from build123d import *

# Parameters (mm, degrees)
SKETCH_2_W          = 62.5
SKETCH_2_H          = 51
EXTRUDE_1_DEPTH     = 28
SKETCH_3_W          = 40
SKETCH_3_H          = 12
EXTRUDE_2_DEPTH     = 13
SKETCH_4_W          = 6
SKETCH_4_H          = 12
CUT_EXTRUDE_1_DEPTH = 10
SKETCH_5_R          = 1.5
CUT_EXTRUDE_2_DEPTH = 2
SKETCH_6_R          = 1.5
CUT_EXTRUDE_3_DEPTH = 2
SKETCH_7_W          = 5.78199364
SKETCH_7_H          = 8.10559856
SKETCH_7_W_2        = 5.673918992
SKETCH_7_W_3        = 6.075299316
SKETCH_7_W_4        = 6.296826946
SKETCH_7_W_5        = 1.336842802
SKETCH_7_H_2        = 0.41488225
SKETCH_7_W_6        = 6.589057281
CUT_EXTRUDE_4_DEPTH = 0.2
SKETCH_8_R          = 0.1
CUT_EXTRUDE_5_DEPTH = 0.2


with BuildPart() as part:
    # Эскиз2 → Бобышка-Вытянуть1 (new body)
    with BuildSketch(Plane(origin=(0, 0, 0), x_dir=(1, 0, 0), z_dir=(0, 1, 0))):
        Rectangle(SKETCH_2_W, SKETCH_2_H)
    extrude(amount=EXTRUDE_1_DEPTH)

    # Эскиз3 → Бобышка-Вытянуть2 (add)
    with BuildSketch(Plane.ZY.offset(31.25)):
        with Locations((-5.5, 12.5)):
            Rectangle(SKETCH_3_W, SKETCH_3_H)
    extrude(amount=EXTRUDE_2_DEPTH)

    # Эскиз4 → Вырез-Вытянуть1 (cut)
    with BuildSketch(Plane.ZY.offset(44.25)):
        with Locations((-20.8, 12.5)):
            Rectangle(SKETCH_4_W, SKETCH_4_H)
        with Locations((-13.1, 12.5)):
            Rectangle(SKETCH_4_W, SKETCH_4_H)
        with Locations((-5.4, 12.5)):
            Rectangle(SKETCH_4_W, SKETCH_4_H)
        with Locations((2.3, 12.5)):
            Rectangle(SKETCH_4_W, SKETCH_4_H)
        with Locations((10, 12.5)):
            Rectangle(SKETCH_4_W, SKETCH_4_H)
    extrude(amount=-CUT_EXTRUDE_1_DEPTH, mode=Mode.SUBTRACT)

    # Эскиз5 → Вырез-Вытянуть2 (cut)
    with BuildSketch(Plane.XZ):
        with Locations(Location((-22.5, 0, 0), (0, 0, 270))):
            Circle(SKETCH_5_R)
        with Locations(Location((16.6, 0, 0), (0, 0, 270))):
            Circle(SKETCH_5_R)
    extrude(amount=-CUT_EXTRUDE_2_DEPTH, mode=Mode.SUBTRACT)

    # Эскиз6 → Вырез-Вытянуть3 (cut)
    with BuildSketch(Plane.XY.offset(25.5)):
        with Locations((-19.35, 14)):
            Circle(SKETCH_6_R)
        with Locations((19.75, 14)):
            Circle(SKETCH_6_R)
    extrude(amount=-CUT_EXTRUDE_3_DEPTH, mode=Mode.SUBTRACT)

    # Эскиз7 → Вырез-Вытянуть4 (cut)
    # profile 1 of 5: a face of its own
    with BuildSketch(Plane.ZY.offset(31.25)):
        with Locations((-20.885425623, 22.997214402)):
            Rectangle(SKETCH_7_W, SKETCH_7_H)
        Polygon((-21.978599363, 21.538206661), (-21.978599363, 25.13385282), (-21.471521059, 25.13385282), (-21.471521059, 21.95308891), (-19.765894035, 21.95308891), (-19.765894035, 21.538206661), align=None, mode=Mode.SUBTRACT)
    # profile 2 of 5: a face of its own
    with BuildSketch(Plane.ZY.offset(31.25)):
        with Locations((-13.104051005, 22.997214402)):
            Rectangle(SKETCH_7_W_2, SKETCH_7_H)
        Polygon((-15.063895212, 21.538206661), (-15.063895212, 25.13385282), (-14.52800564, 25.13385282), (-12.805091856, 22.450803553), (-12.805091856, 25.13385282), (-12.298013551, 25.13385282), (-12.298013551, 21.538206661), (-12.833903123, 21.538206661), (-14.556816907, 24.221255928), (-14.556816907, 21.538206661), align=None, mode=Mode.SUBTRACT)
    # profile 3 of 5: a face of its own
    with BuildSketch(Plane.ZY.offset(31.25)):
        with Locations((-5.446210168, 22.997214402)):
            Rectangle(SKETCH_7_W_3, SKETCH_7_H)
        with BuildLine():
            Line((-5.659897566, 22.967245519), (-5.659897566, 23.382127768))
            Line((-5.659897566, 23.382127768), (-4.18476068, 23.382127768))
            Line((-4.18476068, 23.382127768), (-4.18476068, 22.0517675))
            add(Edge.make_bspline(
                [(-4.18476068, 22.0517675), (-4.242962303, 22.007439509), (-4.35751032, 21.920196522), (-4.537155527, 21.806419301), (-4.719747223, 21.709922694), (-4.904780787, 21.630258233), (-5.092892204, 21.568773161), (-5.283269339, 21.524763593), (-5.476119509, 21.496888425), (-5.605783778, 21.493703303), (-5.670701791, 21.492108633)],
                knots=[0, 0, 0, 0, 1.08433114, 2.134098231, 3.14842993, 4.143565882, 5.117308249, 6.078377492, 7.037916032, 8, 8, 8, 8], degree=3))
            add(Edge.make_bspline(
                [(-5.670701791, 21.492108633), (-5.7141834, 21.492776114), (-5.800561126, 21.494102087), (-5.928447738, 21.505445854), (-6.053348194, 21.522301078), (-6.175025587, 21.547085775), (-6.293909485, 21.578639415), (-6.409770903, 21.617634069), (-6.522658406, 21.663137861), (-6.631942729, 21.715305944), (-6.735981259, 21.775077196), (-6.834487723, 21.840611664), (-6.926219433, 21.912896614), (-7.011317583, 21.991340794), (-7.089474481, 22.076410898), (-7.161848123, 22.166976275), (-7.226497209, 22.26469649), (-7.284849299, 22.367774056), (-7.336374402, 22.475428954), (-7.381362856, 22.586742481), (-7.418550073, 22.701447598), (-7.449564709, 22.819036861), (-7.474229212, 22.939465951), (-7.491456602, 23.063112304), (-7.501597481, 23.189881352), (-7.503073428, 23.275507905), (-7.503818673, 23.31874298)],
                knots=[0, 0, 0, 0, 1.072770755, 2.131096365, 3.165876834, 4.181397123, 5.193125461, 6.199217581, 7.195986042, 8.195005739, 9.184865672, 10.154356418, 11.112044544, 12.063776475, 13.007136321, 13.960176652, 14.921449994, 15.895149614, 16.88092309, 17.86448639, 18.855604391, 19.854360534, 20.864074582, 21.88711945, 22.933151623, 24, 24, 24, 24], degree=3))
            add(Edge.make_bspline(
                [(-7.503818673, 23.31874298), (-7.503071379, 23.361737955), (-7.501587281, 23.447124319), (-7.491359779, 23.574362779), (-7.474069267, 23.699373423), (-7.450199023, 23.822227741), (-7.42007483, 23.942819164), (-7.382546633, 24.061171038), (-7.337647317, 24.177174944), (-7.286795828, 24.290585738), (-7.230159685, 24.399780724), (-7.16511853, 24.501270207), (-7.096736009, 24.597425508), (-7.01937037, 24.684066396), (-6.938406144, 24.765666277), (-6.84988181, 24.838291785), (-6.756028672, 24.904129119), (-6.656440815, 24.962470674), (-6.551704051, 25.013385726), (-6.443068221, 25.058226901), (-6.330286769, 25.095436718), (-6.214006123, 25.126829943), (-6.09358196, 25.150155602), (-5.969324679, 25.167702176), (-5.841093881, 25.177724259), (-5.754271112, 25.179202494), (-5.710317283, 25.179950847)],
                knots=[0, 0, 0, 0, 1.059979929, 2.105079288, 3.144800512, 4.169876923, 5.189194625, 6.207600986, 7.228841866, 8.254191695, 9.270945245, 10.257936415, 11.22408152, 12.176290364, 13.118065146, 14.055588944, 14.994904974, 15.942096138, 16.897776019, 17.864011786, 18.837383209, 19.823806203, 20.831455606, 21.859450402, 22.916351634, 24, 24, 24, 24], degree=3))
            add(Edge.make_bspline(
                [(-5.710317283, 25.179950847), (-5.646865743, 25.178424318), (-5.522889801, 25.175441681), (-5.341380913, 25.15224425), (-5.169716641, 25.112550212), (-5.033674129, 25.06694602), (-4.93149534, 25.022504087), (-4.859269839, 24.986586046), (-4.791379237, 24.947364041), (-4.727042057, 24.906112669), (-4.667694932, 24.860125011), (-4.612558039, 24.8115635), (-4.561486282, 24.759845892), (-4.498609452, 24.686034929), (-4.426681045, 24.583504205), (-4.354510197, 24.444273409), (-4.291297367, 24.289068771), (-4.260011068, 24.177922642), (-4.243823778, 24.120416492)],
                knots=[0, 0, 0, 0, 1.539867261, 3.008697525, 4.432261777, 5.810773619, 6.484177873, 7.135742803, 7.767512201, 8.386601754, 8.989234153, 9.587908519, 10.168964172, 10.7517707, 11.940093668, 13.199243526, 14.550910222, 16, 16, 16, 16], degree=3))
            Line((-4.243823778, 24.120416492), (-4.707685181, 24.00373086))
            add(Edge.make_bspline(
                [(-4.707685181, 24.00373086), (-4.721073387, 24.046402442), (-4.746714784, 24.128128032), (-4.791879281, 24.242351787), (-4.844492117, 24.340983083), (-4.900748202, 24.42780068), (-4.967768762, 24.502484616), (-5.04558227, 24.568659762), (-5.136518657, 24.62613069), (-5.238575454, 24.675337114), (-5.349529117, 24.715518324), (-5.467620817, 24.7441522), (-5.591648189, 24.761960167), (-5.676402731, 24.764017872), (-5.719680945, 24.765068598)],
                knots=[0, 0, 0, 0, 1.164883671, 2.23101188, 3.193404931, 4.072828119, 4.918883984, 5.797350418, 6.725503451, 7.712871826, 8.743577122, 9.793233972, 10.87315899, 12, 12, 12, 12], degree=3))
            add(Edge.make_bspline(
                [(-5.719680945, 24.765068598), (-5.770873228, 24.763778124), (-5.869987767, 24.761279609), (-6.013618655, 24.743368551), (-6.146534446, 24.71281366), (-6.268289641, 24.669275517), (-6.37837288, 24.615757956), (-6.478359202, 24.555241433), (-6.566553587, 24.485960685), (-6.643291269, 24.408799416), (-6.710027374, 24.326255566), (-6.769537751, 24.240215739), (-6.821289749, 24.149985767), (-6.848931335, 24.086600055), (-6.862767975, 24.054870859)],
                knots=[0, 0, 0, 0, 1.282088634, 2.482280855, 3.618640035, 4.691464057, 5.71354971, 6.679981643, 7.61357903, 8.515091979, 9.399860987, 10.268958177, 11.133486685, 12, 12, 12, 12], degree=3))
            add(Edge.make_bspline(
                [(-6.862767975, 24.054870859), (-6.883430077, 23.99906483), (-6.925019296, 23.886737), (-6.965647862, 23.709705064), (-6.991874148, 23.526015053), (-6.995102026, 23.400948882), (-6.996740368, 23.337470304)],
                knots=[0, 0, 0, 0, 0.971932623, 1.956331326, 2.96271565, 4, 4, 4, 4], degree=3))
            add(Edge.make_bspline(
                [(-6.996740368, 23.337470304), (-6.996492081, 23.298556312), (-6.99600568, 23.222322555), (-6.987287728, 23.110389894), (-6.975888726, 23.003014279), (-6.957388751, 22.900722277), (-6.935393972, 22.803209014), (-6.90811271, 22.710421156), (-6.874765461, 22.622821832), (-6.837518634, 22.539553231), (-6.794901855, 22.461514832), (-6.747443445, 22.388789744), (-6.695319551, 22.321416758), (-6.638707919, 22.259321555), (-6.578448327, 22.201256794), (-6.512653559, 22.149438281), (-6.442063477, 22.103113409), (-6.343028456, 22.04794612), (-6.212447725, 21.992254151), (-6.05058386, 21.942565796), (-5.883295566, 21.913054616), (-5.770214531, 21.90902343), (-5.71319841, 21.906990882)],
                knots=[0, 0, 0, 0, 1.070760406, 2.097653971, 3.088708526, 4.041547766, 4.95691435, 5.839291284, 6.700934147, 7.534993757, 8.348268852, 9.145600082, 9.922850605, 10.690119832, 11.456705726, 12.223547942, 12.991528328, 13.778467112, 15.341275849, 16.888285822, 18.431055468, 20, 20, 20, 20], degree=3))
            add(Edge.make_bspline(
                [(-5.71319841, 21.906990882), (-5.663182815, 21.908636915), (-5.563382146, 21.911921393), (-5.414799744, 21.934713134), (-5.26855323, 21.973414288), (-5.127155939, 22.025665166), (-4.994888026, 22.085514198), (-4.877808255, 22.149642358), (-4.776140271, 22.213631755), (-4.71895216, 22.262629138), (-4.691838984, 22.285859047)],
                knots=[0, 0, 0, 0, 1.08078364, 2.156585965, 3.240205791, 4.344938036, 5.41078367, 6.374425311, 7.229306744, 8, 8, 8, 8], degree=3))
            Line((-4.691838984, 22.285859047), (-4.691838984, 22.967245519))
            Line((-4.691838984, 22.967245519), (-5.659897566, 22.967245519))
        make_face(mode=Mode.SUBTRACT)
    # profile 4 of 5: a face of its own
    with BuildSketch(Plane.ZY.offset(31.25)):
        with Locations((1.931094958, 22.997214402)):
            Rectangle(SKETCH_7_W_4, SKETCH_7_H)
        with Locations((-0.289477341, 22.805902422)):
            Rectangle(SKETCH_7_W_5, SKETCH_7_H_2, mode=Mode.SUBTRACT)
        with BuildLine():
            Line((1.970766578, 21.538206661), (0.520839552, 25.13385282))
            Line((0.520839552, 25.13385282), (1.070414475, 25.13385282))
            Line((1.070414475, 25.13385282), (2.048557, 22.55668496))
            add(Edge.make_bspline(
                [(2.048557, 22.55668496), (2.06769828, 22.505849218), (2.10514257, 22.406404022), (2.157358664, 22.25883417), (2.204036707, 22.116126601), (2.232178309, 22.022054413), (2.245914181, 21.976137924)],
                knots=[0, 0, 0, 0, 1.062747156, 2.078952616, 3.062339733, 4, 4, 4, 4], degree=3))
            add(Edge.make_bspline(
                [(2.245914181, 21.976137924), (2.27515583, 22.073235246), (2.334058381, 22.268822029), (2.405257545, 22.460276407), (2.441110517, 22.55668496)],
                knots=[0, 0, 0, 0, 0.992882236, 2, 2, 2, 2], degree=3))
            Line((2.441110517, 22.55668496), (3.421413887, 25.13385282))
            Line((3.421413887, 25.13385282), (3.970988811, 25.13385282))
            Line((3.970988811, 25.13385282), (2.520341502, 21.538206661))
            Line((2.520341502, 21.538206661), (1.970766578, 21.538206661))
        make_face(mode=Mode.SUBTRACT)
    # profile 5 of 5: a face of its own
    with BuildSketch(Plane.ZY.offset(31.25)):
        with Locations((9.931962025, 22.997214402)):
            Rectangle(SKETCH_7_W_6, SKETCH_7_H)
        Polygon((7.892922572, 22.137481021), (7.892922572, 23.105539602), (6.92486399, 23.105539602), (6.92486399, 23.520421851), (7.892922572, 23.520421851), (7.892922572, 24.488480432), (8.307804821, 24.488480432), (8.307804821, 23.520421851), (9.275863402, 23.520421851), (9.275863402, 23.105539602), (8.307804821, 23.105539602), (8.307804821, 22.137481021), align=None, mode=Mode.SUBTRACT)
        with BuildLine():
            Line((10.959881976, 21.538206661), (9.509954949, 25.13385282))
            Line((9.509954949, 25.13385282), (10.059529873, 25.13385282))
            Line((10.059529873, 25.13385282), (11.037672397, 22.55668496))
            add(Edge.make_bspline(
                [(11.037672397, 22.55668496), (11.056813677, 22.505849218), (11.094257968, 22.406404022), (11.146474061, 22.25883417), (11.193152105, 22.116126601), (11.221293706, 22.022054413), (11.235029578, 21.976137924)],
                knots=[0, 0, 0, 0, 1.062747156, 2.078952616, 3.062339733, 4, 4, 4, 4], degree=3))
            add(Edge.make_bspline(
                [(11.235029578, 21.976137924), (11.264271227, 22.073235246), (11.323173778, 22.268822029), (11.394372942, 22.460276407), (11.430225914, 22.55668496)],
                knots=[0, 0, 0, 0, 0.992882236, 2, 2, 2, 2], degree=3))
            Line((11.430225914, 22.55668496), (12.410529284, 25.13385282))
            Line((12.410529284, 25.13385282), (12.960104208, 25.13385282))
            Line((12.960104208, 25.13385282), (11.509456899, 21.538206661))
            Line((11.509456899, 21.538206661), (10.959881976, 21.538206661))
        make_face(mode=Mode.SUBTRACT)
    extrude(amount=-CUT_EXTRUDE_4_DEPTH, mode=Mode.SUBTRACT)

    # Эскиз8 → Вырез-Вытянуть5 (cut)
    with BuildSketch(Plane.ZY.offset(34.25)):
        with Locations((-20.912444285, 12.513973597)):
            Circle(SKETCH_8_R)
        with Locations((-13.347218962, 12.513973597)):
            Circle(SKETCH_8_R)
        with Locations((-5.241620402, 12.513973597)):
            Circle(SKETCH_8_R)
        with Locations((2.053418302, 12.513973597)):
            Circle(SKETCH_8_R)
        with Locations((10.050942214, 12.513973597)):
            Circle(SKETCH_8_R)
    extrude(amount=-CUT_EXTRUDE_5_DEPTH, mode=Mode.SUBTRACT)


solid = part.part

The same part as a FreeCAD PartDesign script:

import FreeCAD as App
import Part
import Sketcher

V = App.Vector

doc = App.newDocument("Part")
body = doc.addObject("PartDesign::Body", "Body")

# Sketch on XZ plane
sketch1 = body.newObject("Sketcher::SketchObject", "Sketch")
sketch1.AttachmentSupport = (doc.getObject("XZ_Plane"), [""])
sketch1.MapMode = "FlatFace"
sketch1.addGeometry([
    Part.LineSegment(V(-31.25, -25.5, 0), V(-31.25, 25.5, 0)),
    Part.LineSegment(V(-31.25, 25.5, 0), V(31.25, 25.5, 0)),
    Part.LineSegment(V(31.25, 25.5, 0), V(31.25, -25.5, 0)),
    Part.LineSegment(V(31.25, -25.5, 0), V(-31.25, -25.5, 0)),
], False)
sketch1.addConstraint([
    Sketcher.Constraint("Coincident", 0, 2, 1, 1),
    Sketcher.Constraint("Coincident", 1, 2, 2, 1),
    Sketcher.Constraint("Coincident", 2, 2, 3, 1),
    Sketcher.Constraint("Coincident", 3, 2, 0, 1),
    Sketcher.Constraint("Vertical", 0),
    Sketcher.Constraint("Horizontal", 1),
    Sketcher.Constraint("Vertical", 2),
    Sketcher.Constraint("Horizontal", 3),
    Sketcher.Constraint("Symmetric", 0, 2, 2, 2, -1, 1),
    Sketcher.Constraint("DistanceY", 0, 1, 0, 2, 51.0),
    Sketcher.Constraint("DistanceX", 1, 1, 1, 2, 62.5),
])
pad1 = body.newObject("PartDesign::Pad", "Pad")
pad1.Profile = sketch1
pad1.Length = 28
pad1.Reversed = True

# Sketch on YZ plane
sketch2 = body.newObject("Sketcher::SketchObject", "Sketch001")
sketch2.AttachmentSupport = (doc.getObject("YZ_Plane"), [""])
sketch2.MapMode = "FlatFace"
sketch2.AttachmentOffset = App.Placement(V(0, 0, -31.25), App.Rotation())
sketch2.addGeometry([
    Part.LineSegment(V(18.5, -25.5, 0), V(6.5, -25.5, 0)),
    Part.LineSegment(V(6.5, -25.5, 0), V(6.5, 14.5, 0)),
    Part.LineSegment(V(6.5, 14.5, 0), V(18.5, 14.5, 0)),
    Part.LineSegment(V(18.5, 14.5, 0), V(18.5, -25.5, 0)),
], False)
sketch2.addConstraint([
    Sketcher.Constraint("Coincident", 0, 2, 1, 1),
    Sketcher.Constraint("Coincident", 1, 2, 2, 1),
    Sketcher.Constraint("Coincident", 2, 2, 3, 1),
    Sketcher.Constraint("Coincident", 3, 2, 0, 1),
    Sketcher.Constraint("Horizontal", 0),
    Sketcher.Constraint("Vertical", 1),
    Sketcher.Constraint("Horizontal", 2),
    Sketcher.Constraint("Vertical", 3),
    Sketcher.Constraint("DistanceX", 0, 2, 0, 1, 12.0),
    Sketcher.Constraint("DistanceY", 1, 1, 1, 2, 40.0),
    Sketcher.Constraint("DistanceX", -1, 1, 0, 2, 6.5),
    Sketcher.Constraint("DistanceY", 0, 2, -1, 1, 25.5),
])
pad2 = body.newObject("PartDesign::Pad", "Pad001")
pad2.Profile = sketch2
pad2.Length = 13
pad2.Reversed = True

# Sketch on YZ plane
sketch3 = body.newObject("Sketcher::SketchObject", "Sketch002")
sketch3.AttachmentSupport = (doc.getObject("YZ_Plane"), [""])
sketch3.MapMode = "FlatFace"
sketch3.AttachmentOffset = App.Placement(V(0, 0, -44.25), App.Rotation())
sketch3.addGeometry([
    Part.LineSegment(V(18.5, -23.8, 0), V(6.5, -23.8, 0)),  # 0
    Part.LineSegment(V(6.5, -23.8, 0), V(6.5, -17.8, 0)),  # 1
    Part.LineSegment(V(6.5, -17.8, 0), V(18.5, -17.8, 0)),  # 2
    Part.LineSegment(V(18.5, -17.8, 0), V(18.5, -23.8, 0)),  # 3
    Part.LineSegment(V(18.5, -16.1, 0), V(6.5, -16.1, 0)),  # 4
    Part.LineSegment(V(6.5, -16.1, 0), V(6.5, -10.1, 0)),  # 5
    Part.LineSegment(V(6.5, -10.1, 0), V(18.5, -10.1, 0)),  # 6
    Part.LineSegment(V(18.5, -10.1, 0), V(18.5, -16.1, 0)),  # 7
    Part.LineSegment(V(18.5, -8.4, 0), V(6.5, -8.4, 0)),  # 8
    Part.LineSegment(V(6.5, -8.4, 0), V(6.5, -2.4, 0)),  # 9
    Part.LineSegment(V(6.5, -2.4, 0), V(18.5, -2.4, 0)),  # 10
    Part.LineSegment(V(18.5, -2.4, 0), V(18.5, -8.4, 0)),  # 11
    Part.LineSegment(V(18.5, -0.7, 0), V(6.5, -0.7, 0)),  # 12
    Part.LineSegment(V(6.5, -0.7, 0), V(6.5, 5.3, 0)),  # 13
    Part.LineSegment(V(6.5, 5.3, 0), V(18.5, 5.3, 0)),  # 14
    Part.LineSegment(V(18.5, 5.3, 0), V(18.5, -0.7, 0)),  # 15
    Part.LineSegment(V(18.5, 7, 0), V(6.5, 7, 0)),  # 16
    Part.LineSegment(V(6.5, 7, 0), V(6.5, 13, 0)),  # 17
    Part.LineSegment(V(6.5, 13, 0), V(18.5, 13, 0)),  # 18
    Part.LineSegment(V(18.5, 13, 0), V(18.5, 7, 0)),  # 19
], False)
sketch3.addConstraint([
    Sketcher.Constraint("Coincident", 0, 2, 1, 1),
    Sketcher.Constraint("Coincident", 1, 2, 2, 1),
    Sketcher.Constraint("Coincident", 2, 2, 3, 1),
    Sketcher.Constraint("Coincident", 3, 2, 0, 1),
    Sketcher.Constraint("Coincident", 4, 2, 5, 1),
    Sketcher.Constraint("Coincident", 5, 2, 6, 1),
    Sketcher.Constraint("Coincident", 6, 2, 7, 1),
    Sketcher.Constraint("Coincident", 7, 2, 4, 1),
    Sketcher.Constraint("Coincident", 8, 2, 9, 1),
    Sketcher.Constraint("Coincident", 9, 2, 10, 1),
    Sketcher.Constraint("Coincident", 10, 2, 11, 1),
    Sketcher.Constraint("Coincident", 11, 2, 8, 1),
    Sketcher.Constraint("Coincident", 12, 2, 13, 1),
    Sketcher.Constraint("Coincident", 13, 2, 14, 1),
    Sketcher.Constraint("Coincident", 14, 2, 15, 1),
    Sketcher.Constraint("Coincident", 15, 2, 12, 1),
    Sketcher.Constraint("Coincident", 16, 2, 17, 1),
    Sketcher.Constraint("Coincident", 17, 2, 18, 1),
    Sketcher.Constraint("Coincident", 18, 2, 19, 1),
    Sketcher.Constraint("Coincident", 19, 2, 16, 1),
    Sketcher.Constraint("Horizontal", 0),
    Sketcher.Constraint("Vertical", 1),
    Sketcher.Constraint("Horizontal", 2),
    Sketcher.Constraint("Vertical", 3),
    Sketcher.Constraint("Horizontal", 4),
    Sketcher.Constraint("Vertical", 5),
    Sketcher.Constraint("Horizontal", 6),
    Sketcher.Constraint("Vertical", 7),
    Sketcher.Constraint("Horizontal", 8),
    Sketcher.Constraint("Vertical", 9),
    Sketcher.Constraint("Horizontal", 10),
    Sketcher.Constraint("Vertical", 11),
    Sketcher.Constraint("Horizontal", 12),
    Sketcher.Constraint("Vertical", 13),
    Sketcher.Constraint("Horizontal", 14),
    Sketcher.Constraint("Vertical", 15),
    Sketcher.Constraint("Horizontal", 16),
    Sketcher.Constraint("Vertical", 17),
    Sketcher.Constraint("Horizontal", 18),
    Sketcher.Constraint("Vertical", 19),
    Sketcher.Constraint("Vertical", 1, 2, 4, 2),
    Sketcher.Constraint("Vertical", 3, 2, 6, 2),
    Sketcher.Constraint("Vertical", 5, 2, 8, 2),
    Sketcher.Constraint("Vertical", 7, 2, 10, 2),
    Sketcher.Constraint("Vertical", 9, 2, 12, 2),
    Sketcher.Constraint("Vertical", 11, 2, 14, 2),
    Sketcher.Constraint("Vertical", 13, 2, 16, 2),
    Sketcher.Constraint("Vertical", 15, 2, 18, 2),
    Sketcher.Constraint("Equal", 3, 5),
    Sketcher.Constraint("Equal", 7, 9),
    Sketcher.Constraint("Equal", 11, 13),
    Sketcher.Constraint("Equal", 15, 17),
    Sketcher.Constraint("DistanceX", 0, 2, 0, 1, 12.0),
    Sketcher.Constraint("DistanceY", 1, 1, 1, 2, 6.0),
    Sketcher.Constraint("DistanceY", -1, 1, 16, 2, 7.0),
    Sketcher.Constraint("DistanceX", -1, 1, 0, 2, 6.5),
    Sketcher.Constraint("DistanceY", 0, 2, -1, 1, 23.8),
    Sketcher.Constraint("DistanceY", 4, 2, -1, 1, 16.1),
    Sketcher.Constraint("DistanceY", 8, 2, -1, 1, 8.4),
    Sketcher.Constraint("DistanceY", 12, 2, -1, 1, 0.7),
])
pocket1 = body.newObject("PartDesign::Pocket", "Pocket")
pocket1.Profile = sketch3
pocket1.Length = 10
pocket1.Reversed = True

# Sketch on XZ plane
sketch4 = body.newObject("Sketcher::SketchObject", "Sketch003")
sketch4.AttachmentSupport = (doc.getObject("XZ_Plane"), [""])
sketch4.MapMode = "FlatFace"
sketch4.addGeometry([
    Part.Circle(V(-22.5, 0, 0), V(0, 0, 1), 1.5),
    Part.Circle(V(16.6, 0, 0), V(0, 0, 1), 1.5),
], False)
sketch4.addConstraint([
    Sketcher.Constraint("Equal", 0, 1),
    Sketcher.Constraint("PointOnObject", 0, 3, -1),
    Sketcher.Constraint("PointOnObject", 1, 3, -1),
    Sketcher.Constraint("Diameter", 0, 3.0),
    Sketcher.Constraint("DistanceX", 0, 3, -1, 1, 22.5),
    Sketcher.Constraint("DistanceX", -1, 1, 1, 3, 16.6),
])
pocket2 = body.newObject("PartDesign::Pocket", "Pocket001")
pocket2.Profile = sketch4
pocket2.Length = 2

# Sketch on XY plane
sketch5 = body.newObject("Sketcher::SketchObject", "Sketch004")
sketch5.AttachmentSupport = (doc.getObject("XY_Plane"), [""])
sketch5.MapMode = "FlatFace"
sketch5.AttachmentOffset = App.Placement(V(0, 0, 25.5), App.Rotation())
sketch5.addGeometry([
    Part.Circle(V(-19.35, 14, 0), V(0, 0, 1), 1.5),
    Part.Circle(V(19.75, 14, 0), V(0, 0, 1), 1.5),
], False)
sketch5.addConstraint([
    Sketcher.Constraint("Equal", 0, 1),
    Sketcher.Constraint("Horizontal", 0, 3, 1, 3),
    Sketcher.Constraint("Diameter", 0, 3.0),
    Sketcher.Constraint("DistanceY", -1, 1, 0, 3, 14.0),
    Sketcher.Constraint("DistanceX", 0, 3, 1, 3, 39.1),
    Sketcher.Constraint("DistanceX", 0, 3, -1, 1, 19.35),
])
pocket3 = body.newObject("PartDesign::Pocket", "Pocket002")
pocket3.Profile = sketch5
pocket3.Length = 2

# Sketch on YZ plane
sketch6 = body.newObject("Sketcher::SketchObject", "Sketch005")
sketch6.AttachmentSupport = (doc.getObject("YZ_Plane"), [""])
sketch6.MapMode = "FlatFace"
sketch6.AttachmentOffset = App.Placement(V(0, 0, -31.25), App.Rotation())
sketch6.addGeometry([
    Part.LineSegment(V(27.050014, -23.776422, 0), V(18.944415, -23.776422, 0)),  # 0
    Part.LineSegment(V(18.944415, -23.776422, 0), V(18.944415, -17.994429, 0)),  # 1
    Part.LineSegment(V(18.944415, -17.994429, 0), V(27.050014, -17.994429, 0)),  # 2
    Part.LineSegment(V(27.050014, -17.994429, 0), V(27.050014, -23.776422, 0)),  # 3
    Part.LineSegment(V(21.538207, -19.765894, 0), V(21.538207, -21.978599, 0)),  # 4
    Part.LineSegment(V(21.538207, -21.978599, 0), V(25.133853, -21.978599, 0)),  # 5
    Part.LineSegment(V(25.133853, -21.978599, 0), V(25.133853, -21.471521, 0)),  # 6
    Part.LineSegment(V(25.133853, -21.471521, 0), V(21.953089, -21.471521, 0)),  # 7
    Part.LineSegment(V(21.953089, -21.471521, 0), V(21.953089, -19.765894, 0)),  # 8
    Part.LineSegment(V(21.953089, -19.765894, 0), V(21.538207, -19.765894, 0)),  # 9
    Part.LineSegment(V(27.050014, -15.941011, 0), V(18.944415, -15.941011, 0)),  # 10
    Part.LineSegment(V(18.944415, -15.941011, 0), V(18.944415, -10.267092, 0)),  # 11
    Part.LineSegment(V(18.944415, -10.267092, 0), V(27.050014, -10.267092, 0)),  # 12
    Part.LineSegment(V(27.050014, -10.267092, 0), V(27.050014, -15.941011, 0)),  # 13
    Part.LineSegment(V(21.538207, -14.556817, 0), V(21.538207, -15.063895, 0)),  # 14
    Part.LineSegment(V(21.538207, -15.063895, 0), V(25.133853, -15.063895, 0)),  # 15
    Part.LineSegment(V(25.133853, -15.063895, 0), V(25.133853, -14.528006, 0)),  # 16
    Part.LineSegment(V(25.133853, -14.528006, 0), V(22.450804, -12.805092, 0)),  # 17
    Part.LineSegment(V(22.450804, -12.805092, 0), V(25.133853, -12.805092, 0)),  # 18
    Part.LineSegment(V(25.133853, -12.805092, 0), V(25.133853, -12.298014, 0)),  # 19
    Part.LineSegment(V(25.133853, -12.298014, 0), V(21.538207, -12.298014, 0)),  # 20
    Part.LineSegment(V(21.538207, -12.298014, 0), V(21.538207, -12.833903, 0)),  # 21
    Part.LineSegment(V(21.538207, -12.833903, 0), V(24.221256, -14.556817, 0)),  # 22
    Part.LineSegment(V(24.221256, -14.556817, 0), V(21.538207, -14.556817, 0)),  # 23
    Part.LineSegment(V(27.050014, -8.48386, 0), V(18.944415, -8.48386, 0)),  # 24
    Part.LineSegment(V(18.944415, -8.48386, 0), V(18.944415, -2.408561, 0)),  # 25
    Part.LineSegment(V(18.944415, -2.408561, 0), V(27.050014, -2.408561, 0)),  # 26
    Part.LineSegment(V(27.050014, -2.408561, 0), V(27.050014, -8.48386, 0)),  # 27
    Part.LineSegment(V(22.967246, -4.691839, 0), V(22.967246, -5.659898, 0)),  # 28
    Part.LineSegment(V(22.967246, -5.659898, 0), V(23.382128, -5.659898, 0)),  # 29
    Part.LineSegment(V(23.382128, -5.659898, 0), V(23.382128, -4.184761, 0)),  # 30
    Part.LineSegment(V(23.382128, -4.184761, 0), V(22.051768, -4.184761, 0)),  # 31
    Part.BSplineCurve([V(22.051768, -4.184761, 0), V(22.00744, -4.242962, 0), V(21.920197, -4.35751, 0), V(21.806419, -4.537156, 0), V(21.709923, -4.719747, 0), V(21.630258, -4.904781, 0), V(21.568773, -5.092892, 0), V(21.524764, -5.283269, 0), V(21.496888, -5.47612, 0), V(21.493703, -5.605784, 0), V(21.492109, -5.670702, 0)], [4, 1, 1, 1, 1, 1, 1, 1, 4], [0, 1.08433114, 2.134098231, 3.14842993, 4.143565882, 5.117308249, 6.078377492, 7.037916032, 8], False, 3, [1, 1, 1, 1, 1, 1, 1, 1, 1, 1, 1], False),  # 32
    Part.BSplineCurve([V(21.492109, -5.670702, 0), V(21.492776, -5.714183, 0), V(21.494102, -5.800561, 0), V(21.505446, -5.928448, 0), V(21.522301, -6.053348, 0), V(21.547086, -6.175026, 0), V(21.578639, -6.293909, 0), V(21.617634, -6.409771, 0), V(21.663138, -6.522658, 0), V(21.715306, -6.631943, 0), V(21.775077, -6.735981, 0), V(21.840612, -6.834488, 0), V(21.912897, -6.926219, 0), V(21.991341, -7.011318, 0), V(22.076411, -7.089474, 0), V(22.166976, -7.161848, 0), V(22.264696, -7.226497, 0), V(22.367774, -7.284849, 0), V(22.475429, -7.336374, 0), V(22.586742, -7.381363, 0), V(22.701448, -7.41855, 0), V(22.819037, -7.449565, 0), V(22.939466, -7.474229, 0), V(23.063112, -7.491457, 0), V(23.189881, -7.501597, 0), V(23.275508, -7.503073, 0), V(23.318743, -7.503819, 0)], [4, 1, 1, 1, 1, 1, 1, 1, 1, 1, 1, 1, 1, 1, 1, 1, 1, 1, 1, 1, 1, 1, 1, 1, 4], [0, 1.072770755, 2.131096365, 3.165876834, 4.181397123, 5.193125461, 6.199217581, 7.195986042, 8.195005739, 9.184865672, 10.154356418, 11.112044544, 12.063776475, 13.007136321, 13.960176652, 14.921449994, 15.895149614, 16.88092309, 17.86448639, 18.855604391, 19.854360534, 20.864074582, 21.88711945, 22.933151623, 24], False, 3, [1, 1, 1, 1, 1, 1, 1, 1, 1, 1, 1, 1, 1, 1, 1, 1, 1, 1, 1, 1, 1, 1, 1, 1, 1, 1, 1], False),  # 33
    Part.BSplineCurve([V(23.318743, -7.503819, 0), V(23.361738, -7.503071, 0), V(23.447124, -7.501587, 0), V(23.574363, -7.49136, 0), V(23.699373, -7.474069, 0), V(23.822228, -7.450199, 0), V(23.942819, -7.420075, 0), V(24.061171, -7.382547, 0), V(24.177175, -7.337647, 0), V(24.290586, -7.286796, 0), V(24.399781, -7.23016, 0), V(24.50127, -7.165119, 0), V(24.597426, -7.096736, 0), V(24.684066, -7.01937, 0), V(24.765666, -6.938406, 0), V(24.838292, -6.849882, 0), V(24.904129, -6.756029, 0), V(24.962471, -6.656441, 0), V(25.013386, -6.551704, 0), V(25.058227, -6.443068, 0), V(25.095437, -6.330287, 0), V(25.12683, -6.214006, 0), V(25.150156, -6.093582, 0), V(25.167702, -5.969325, 0), V(25.177724, -5.841094, 0), V(25.179202, -5.754271, 0), V(25.179951, -5.710317, 0)], [4, 1, 1, 1, 1, 1, 1, 1, 1, 1, 1, 1, 1, 1, 1, 1, 1, 1, 1, 1, 1, 1, 1, 1, 4], [0, 1.059979929, 2.105079288, 3.144800512, 4.169876923, 5.189194625, 6.207600986, 7.228841866, 8.254191695, 9.270945245, 10.257936415, 11.22408152, 12.176290364, 13.118065146, 14.055588944, 14.994904974, 15.942096138, 16.897776019, 17.864011786, 18.837383209, 19.823806203, 20.831455606, 21.859450402, 22.916351634, 24], False, 3, [1, 1, 1, 1, 1, 1, 1, 1, 1, 1, 1, 1, 1, 1, 1, 1, 1, 1, 1, 1, 1, 1, 1, 1, 1, 1, 1], False),  # 34
    Part.BSplineCurve([V(25.179951, -5.710317, 0), V(25.178424, -5.646866, 0), V(25.175442, -5.52289, 0), V(25.152244, -5.341381, 0), V(25.11255, -5.169717, 0), V(25.066946, -5.033674, 0), V(25.022504, -4.931495, 0), V(24.986586, -4.85927, 0), V(24.947364, -4.791379, 0), V(24.906113, -4.727042, 0), V(24.860125, -4.667695, 0), V(24.811563, -4.612558, 0), V(24.759846, -4.561486, 0), V(24.686035, -4.498609, 0), V(24.583504, -4.426681, 0), V(24.444273, -4.35451, 0), V(24.289069, -4.291297, 0), V(24.177923, -4.260011, 0), V(24.120416, -4.243824, 0)], [4, 1, 1, 1, 1, 1, 1, 1, 1, 1, 1, 1, 1, 1, 1, 1, 4], [0, 1.539867261, 3.008697525, 4.432261777, 5.810773619, 6.484177873, 7.135742803, 7.767512201, 8.386601754, 8.989234153, 9.587908519, 10.168964172, 10.7517707, 11.940093668, 13.199243526, 14.550910222, 16], False, 3, [1, 1, 1, 1, 1, 1, 1, 1, 1, 1, 1, 1, 1, 1, 1, 1, 1, 1, 1], False),  # 35
    Part.LineSegment(V(24.120416, -4.243824, 0), V(24.003731, -4.707685, 0)),  # 36
    Part.BSplineCurve([V(24.003731, -4.707685, 0), V(24.046402, -4.721073, 0), V(24.128128, -4.746715, 0), V(24.242352, -4.791879, 0), V(24.340983, -4.844492, 0), V(24.427801, -4.900748, 0), V(24.502485, -4.967769, 0), V(24.56866, -5.045582, 0), V(24.626131, -5.136519, 0), V(24.675337, -5.238575, 0), V(24.715518, -5.349529, 0), V(24.744152, -5.467621, 0), V(24.76196, -5.591648, 0), V(24.764018, -5.676403, 0), V(24.765069, -5.719681, 0)], [4, 1, 1, 1, 1, 1, 1, 1, 1, 1, 1, 1, 4], [0, 1.164883671, 2.23101188, 3.193404931, 4.072828119, 4.918883984, 5.797350418, 6.725503451, 7.712871826, 8.743577122, 9.793233972, 10.87315899, 12], False, 3, [1, 1, 1, 1, 1, 1, 1, 1, 1, 1, 1, 1, 1, 1, 1], False),  # 37
    Part.BSplineCurve([V(24.765069, -5.719681, 0), V(24.763778, -5.770873, 0), V(24.76128, -5.869988, 0), V(24.743369, -6.013619, 0), V(24.712814, -6.146534, 0), V(24.669276, -6.26829, 0), V(24.615758, -6.378373, 0), V(24.555241, -6.478359, 0), V(24.485961, -6.566554, 0), V(24.408799, -6.643291, 0), V(24.326256, -6.710027, 0), V(24.240216, -6.769538, 0), V(24.149986, -6.82129, 0), V(24.0866, -6.848931, 0), V(24.054871, -6.862768, 0)], [4, 1, 1, 1, 1, 1, 1, 1, 1, 1, 1, 1, 4], [0, 1.282088634, 2.482280855, 3.618640035, 4.691464057, 5.71354971, 6.679981643, 7.61357903, 8.515091979, 9.399860987, 10.268958177, 11.133486685, 12], False, 3, [1, 1, 1, 1, 1, 1, 1, 1, 1, 1, 1, 1, 1, 1, 1], False),  # 38
    Part.BSplineCurve([V(24.054871, -6.862768, 0), V(23.999065, -6.88343, 0), V(23.886737, -6.925019, 0), V(23.709705, -6.965648, 0), V(23.526015, -6.991874, 0), V(23.400949, -6.995102, 0), V(23.33747, -6.99674, 0)], [4, 1, 1, 1, 4], [0, 0.971932623, 1.956331326, 2.96271565, 4], False, 3, [1, 1, 1, 1, 1, 1, 1], False),  # 39
    Part.BSplineCurve([V(23.33747, -6.99674, 0), V(23.298556, -6.996492, 0), V(23.222323, -6.996006, 0), V(23.11039, -6.987288, 0), V(23.003014, -6.975889, 0), V(22.900722, -6.957389, 0), V(22.803209, -6.935394, 0), V(22.710421, -6.908113, 0), V(22.622822, -6.874765, 0), V(22.539553, -6.837519, 0), V(22.461515, -6.794902, 0), V(22.38879, -6.747443, 0), V(22.321417, -6.69532, 0), V(22.259322, -6.638708, 0), V(22.201257, -6.578448, 0), V(22.149438, -6.512654, 0), V(22.103113, -6.442063, 0), V(22.047946, -6.343028, 0), V(21.992254, -6.212448, 0), V(21.942566, -6.050584, 0), V(21.913055, -5.883296, 0), V(21.909023, -5.770215, 0), V(21.906991, -5.713198, 0)], [4, 1, 1, 1, 1, 1, 1, 1, 1, 1, 1, 1, 1, 1, 1, 1, 1, 1, 1, 1, 4], [0, 1.070760406, 2.097653971, 3.088708526, 4.041547766, 4.95691435, 5.839291284, 6.700934147, 7.534993757, 8.348268852, 9.145600082, 9.922850605, 10.690119832, 11.456705726, 12.223547942, 12.991528328, 13.778467112, 15.341275849, 16.888285822, 18.431055468, 20], False, 3, [1, 1, 1, 1, 1, 1, 1, 1, 1, 1, 1, 1, 1, 1, 1, 1, 1, 1, 1, 1, 1, 1, 1], False),  # 40
    Part.BSplineCurve([V(21.906991, -5.713198, 0), V(21.908637, -5.663183, 0), V(21.911921, -5.563382, 0), V(21.934713, -5.4148, 0), V(21.973414, -5.268553, 0), V(22.025665, -5.127156, 0), V(22.085514, -4.994888, 0), V(22.149642, -4.877808, 0), V(22.213632, -4.77614, 0), V(22.262629, -4.718952, 0), V(22.285859, -4.691839, 0)], [4, 1, 1, 1, 1, 1, 1, 1, 4], [0, 1.08078364, 2.156585965, 3.240205791, 4.344938036, 5.41078367, 6.374425311, 7.229306744, 8], False, 3, [1, 1, 1, 1, 1, 1, 1, 1, 1, 1, 1], False),  # 41
    Part.LineSegment(V(22.285859, -4.691839, 0), V(22.967246, -4.691839, 0)),  # 42
    Part.LineSegment(V(27.050014, -1.217319, 0), V(18.944415, -1.217319, 0)),  # 43
    Part.LineSegment(V(18.944415, -1.217319, 0), V(18.944415, 5.079508, 0)),  # 44
    Part.LineSegment(V(18.944415, 5.079508, 0), V(27.050014, 5.079508, 0)),  # 45
    Part.LineSegment(V(27.050014, 5.079508, 0), V(27.050014, -1.217319, 0)),  # 46
    Part.LineSegment(V(22.598461, 0.378944, 0), V(22.598461, -0.957899, 0)),  # 47
    Part.LineSegment(V(22.598461, -0.957899, 0), V(23.013344, -0.957899, 0)),  # 48
    Part.LineSegment(V(23.013344, -0.957899, 0), V(23.013344, 0.378944, 0)),  # 49
    Part.LineSegment(V(23.013344, 0.378944, 0), V(22.598461, 0.378944, 0)),  # 50
    Part.LineSegment(V(21.538207, 2.520342, 0), V(21.538207, 1.970767, 0)),  # 51
    Part.LineSegment(V(21.538207, 1.970767, 0), V(25.133853, 0.52084, 0)),  # 52
    Part.LineSegment(V(25.133853, 0.52084, 0), V(25.133853, 1.070414, 0)),  # 53
    Part.LineSegment(V(25.133853, 1.070414, 0), V(22.556685, 2.048557, 0)),  # 54
    Part.BSplineCurve([V(22.556685, 2.048557, 0), V(22.505849, 2.067698, 0), V(22.406404, 2.105143, 0), V(22.258834, 2.157359, 0), V(22.116127, 2.204037, 0), V(22.022054, 2.232178, 0), V(21.976138, 2.245914, 0)], [4, 1, 1, 1, 4], [0, 1.062747156, 2.078952616, 3.062339733, 4], False, 3, [1, 1, 1, 1, 1, 1, 1], False),  # 55
    Part.BSplineCurve([V(21.976138, 2.245914, 0), V(22.073235, 2.275156, 0), V(22.268822, 2.334058, 0), V(22.460276, 2.405258, 0), V(22.556685, 2.441111, 0)], [4, 1, 4], [0, 0.992882236, 2], False, 3, [1, 1, 1, 1, 1], False),  # 56
    Part.LineSegment(V(22.556685, 2.441111, 0), V(25.133853, 3.421414, 0)),  # 57
    Part.LineSegment(V(25.133853, 3.421414, 0), V(25.133853, 3.970989, 0)),  # 58
    Part.LineSegment(V(25.133853, 3.970989, 0), V(21.538207, 2.520342, 0)),  # 59
    Part.LineSegment(V(27.050014, 6.637433, 0), V(18.944415, 6.637433, 0)),  # 60
    Part.LineSegment(V(18.944415, 6.637433, 0), V(18.944415, 13.226491, 0)),  # 61
    Part.LineSegment(V(18.944415, 13.226491, 0), V(27.050014, 13.226491, 0)),  # 62
    Part.LineSegment(V(27.050014, 13.226491, 0), V(27.050014, 6.637433, 0)),  # 63
    Part.LineSegment(V(22.137481, 8.307805, 0), V(22.137481, 7.892923, 0)),  # 64
    Part.LineSegment(V(22.137481, 7.892923, 0), V(23.10554, 7.892923, 0)),  # 65
    Part.LineSegment(V(23.10554, 7.892923, 0), V(23.10554, 6.924864, 0)),  # 66
    Part.LineSegment(V(23.10554, 6.924864, 0), V(23.520422, 6.924864, 0)),  # 67
    Part.LineSegment(V(23.520422, 6.924864, 0), V(23.520422, 7.892923, 0)),  # 68
    Part.LineSegment(V(23.520422, 7.892923, 0), V(24.48848, 7.892923, 0)),  # 69
    Part.LineSegment(V(24.48848, 7.892923, 0), V(24.48848, 8.307805, 0)),  # 70
    Part.LineSegment(V(24.48848, 8.307805, 0), V(23.520422, 8.307805, 0)),  # 71
    Part.LineSegment(V(23.520422, 8.307805, 0), V(23.520422, 9.275863, 0)),  # 72
    Part.LineSegment(V(23.520422, 9.275863, 0), V(23.10554, 9.275863, 0)),  # 73
    Part.LineSegment(V(23.10554, 9.275863, 0), V(23.10554, 8.307805, 0)),  # 74
    Part.LineSegment(V(23.10554, 8.307805, 0), V(22.137481, 8.307805, 0)),  # 75
    Part.LineSegment(V(21.538207, 11.509457, 0), V(21.538207, 10.959882, 0)),  # 76
    Part.LineSegment(V(21.538207, 10.959882, 0), V(25.133853, 9.509955, 0)),  # 77
    Part.LineSegment(V(25.133853, 9.509955, 0), V(25.133853, 10.05953, 0)),  # 78
    Part.LineSegment(V(25.133853, 10.05953, 0), V(22.556685, 11.037672, 0)),  # 79
    Part.BSplineCurve([V(22.556685, 11.037672, 0), V(22.505849, 11.056814, 0), V(22.406404, 11.094258, 0), V(22.258834, 11.146474, 0), V(22.116127, 11.193152, 0), V(22.022054, 11.221294, 0), V(21.976138, 11.23503, 0)], [4, 1, 1, 1, 4], [0, 1.062747156, 2.078952616, 3.062339733, 4], False, 3, [1, 1, 1, 1, 1, 1, 1], False),  # 80
    Part.BSplineCurve([V(21.976138, 11.23503, 0), V(22.073235, 11.264271, 0), V(22.268822, 11.323174, 0), V(22.460276, 11.394373, 0), V(22.556685, 11.430226, 0)], [4, 1, 4], [0, 0.992882236, 2], False, 3, [1, 1, 1, 1, 1], False),  # 81
    Part.LineSegment(V(22.556685, 11.430226, 0), V(25.133853, 12.410529, 0)),  # 82
    Part.LineSegment(V(25.133853, 12.410529, 0), V(25.133853, 12.960104, 0)),  # 83
    Part.LineSegment(V(25.133853, 12.960104, 0), V(21.538207, 11.509457, 0)),  # 84
], False)
sketch6.addConstraint([
    Sketcher.Constraint("Block", 32),
    Sketcher.Constraint("Block", 33),
    Sketcher.Constraint("Block", 34),
    Sketcher.Constraint("Block", 35),
    Sketcher.Constraint("Block", 37),
    Sketcher.Constraint("Block", 38),
    Sketcher.Constraint("Block", 39),
    Sketcher.Constraint("Block", 40),
    Sketcher.Constraint("Block", 41),
    Sketcher.Constraint("Block", 55),
    Sketcher.Constraint("Block", 56),
    Sketcher.Constraint("Block", 80),
    Sketcher.Constraint("Block", 81),
    Sketcher.Constraint("Coincident", 0, 2, 1, 1),
    Sketcher.Constraint("Coincident", 1, 2, 2, 1),
    Sketcher.Constraint("Coincident", 2, 2, 3, 1),
    Sketcher.Constraint("Coincident", 3, 2, 0, 1),
    Sketcher.Constraint("Coincident", 4, 2, 5, 1),
    Sketcher.Constraint("Coincident", 5, 2, 6, 1),
    Sketcher.Constraint("Coincident", 6, 2, 7, 1),
    Sketcher.Constraint("Coincident", 7, 2, 8, 1),
    Sketcher.Constraint("Coincident", 8, 2, 9, 1),
    Sketcher.Constraint("Coincident", 9, 2, 4, 1),
    Sketcher.Constraint("Coincident", 10, 2, 11, 1),
    Sketcher.Constraint("Coincident", 11, 2, 12, 1),
    Sketcher.Constraint("Coincident", 12, 2, 13, 1),
    Sketcher.Constraint("Coincident", 13, 2, 10, 1),
    Sketcher.Constraint("Coincident", 14, 2, 15, 1),
    Sketcher.Constraint("Coincident", 15, 2, 16, 1),
    Sketcher.Constraint("Coincident", 16, 2, 17, 1),
    Sketcher.Constraint("Coincident", 17, 2, 18, 1),
    Sketcher.Constraint("Coincident", 18, 2, 19, 1),
    Sketcher.Constraint("Coincident", 19, 2, 20, 1),
    Sketcher.Constraint("Coincident", 20, 2, 21, 1),
    Sketcher.Constraint("Coincident", 21, 2, 22, 1),
    Sketcher.Constraint("Coincident", 22, 2, 23, 1),
    Sketcher.Constraint("Coincident", 23, 2, 14, 1),
    Sketcher.Constraint("Coincident", 24, 2, 25, 1),
    Sketcher.Constraint("Coincident", 25, 2, 26, 1),
    Sketcher.Constraint("Coincident", 26, 2, 27, 1),
    Sketcher.Constraint("Coincident", 27, 2, 24, 1),
    Sketcher.Constraint("Coincident", 28, 2, 29, 1),
    Sketcher.Constraint("Coincident", 29, 2, 30, 1),
    Sketcher.Constraint("Coincident", 30, 2, 31, 1),
    Sketcher.Constraint("Coincident", 31, 2, 32, 1),
    Sketcher.Constraint("Coincident", 35, 2, 36, 1),
    Sketcher.Constraint("Coincident", 36, 2, 37, 1),
    Sketcher.Constraint("Coincident", 41, 2, 42, 1),
    Sketcher.Constraint("Coincident", 42, 2, 28, 1),
    Sketcher.Constraint("Coincident", 43, 2, 44, 1),
    Sketcher.Constraint("Coincident", 44, 2, 45, 1),
    Sketcher.Constraint("Coincident", 45, 2, 46, 1),
    Sketcher.Constraint("Coincident", 46, 2, 43, 1),
    Sketcher.Constraint("Coincident", 47, 2, 48, 1),
    Sketcher.Constraint("Coincident", 48, 2, 49, 1),
    Sketcher.Constraint("Coincident", 49, 2, 50, 1),
    Sketcher.Constraint("Coincident", 50, 2, 47, 1),
    Sketcher.Constraint("Coincident", 51, 2, 52, 1),
    Sketcher.Constraint("Coincident", 52, 2, 53, 1),
    Sketcher.Constraint("Coincident", 53, 2, 54, 1),
    Sketcher.Constraint("Coincident", 54, 2, 55, 1),
    Sketcher.Constraint("Coincident", 56, 2, 57, 1),
    Sketcher.Constraint("Coincident", 57, 2, 58, 1),
    Sketcher.Constraint("Coincident", 58, 2, 59, 1),
    Sketcher.Constraint("Coincident", 59, 2, 51, 1),
    Sketcher.Constraint("Coincident", 60, 2, 61, 1),
    Sketcher.Constraint("Coincident", 61, 2, 62, 1),
    Sketcher.Constraint("Coincident", 62, 2, 63, 1),
    Sketcher.Constraint("Coincident", 63, 2, 60, 1),
    Sketcher.Constraint("Coincident", 64, 2, 65, 1),
    Sketcher.Constraint("Coincident", 65, 2, 66, 1),
    Sketcher.Constraint("Coincident", 66, 2, 67, 1),
    Sketcher.Constraint("Coincident", 67, 2, 68, 1),
    Sketcher.Constraint("Coincident", 68, 2, 69, 1),
    Sketcher.Constraint("Coincident", 69, 2, 70, 1),
    Sketcher.Constraint("Coincident", 70, 2, 71, 1),
    Sketcher.Constraint("Coincident", 71, 2, 72, 1),
    Sketcher.Constraint("Coincident", 72, 2, 73, 1),
    Sketcher.Constraint("Coincident", 73, 2, 74, 1),
    Sketcher.Constraint("Coincident", 74, 2, 75, 1),
    Sketcher.Constraint("Coincident", 75, 2, 64, 1),
    Sketcher.Constraint("Coincident", 76, 2, 77, 1),
    Sketcher.Constraint("Coincident", 77, 2, 78, 1),
    Sketcher.Constraint("Coincident", 78, 2, 79, 1),
    Sketcher.Constraint("Coincident", 79, 2, 80, 1),
    Sketcher.Constraint("Coincident", 81, 2, 82, 1),
    Sketcher.Constraint("Coincident", 82, 2, 83, 1),
    Sketcher.Constraint("Coincident", 83, 2, 84, 1),
    Sketcher.Constraint("Coincident", 84, 2, 76, 1),
    Sketcher.Constraint("Horizontal", 0),
    Sketcher.Constraint("Vertical", 1),
    Sketcher.Constraint("Horizontal", 2),
    Sketcher.Constraint("Vertical", 3),
    Sketcher.Constraint("Vertical", 4),
    Sketcher.Constraint("Horizontal", 5),
    Sketcher.Constraint("Vertical", 6),
    Sketcher.Constraint("Horizontal", 7),
    Sketcher.Constraint("Vertical", 8),
    Sketcher.Constraint("Horizontal", 9),
    Sketcher.Constraint("Horizontal", 10),
    Sketcher.Constraint("Vertical", 11),
    Sketcher.Constraint("Horizontal", 12),
    Sketcher.Constraint("Vertical", 13),
    Sketcher.Constraint("Vertical", 14),
    Sketcher.Constraint("Horizontal", 15),
    Sketcher.Constraint("Vertical", 16),
    Sketcher.Constraint("Horizontal", 18),
    Sketcher.Constraint("Vertical", 19),
    Sketcher.Constraint("Horizontal", 20),
    Sketcher.Constraint("Vertical", 21),
    Sketcher.Constraint("Horizontal", 23),
    Sketcher.Constraint("Horizontal", 24),
    Sketcher.Constraint("Vertical", 25),
    Sketcher.Constraint("Horizontal", 26),
    Sketcher.Constraint("Vertical", 27),
    Sketcher.Constraint("Vertical", 28),
    Sketcher.Constraint("Horizontal", 29),
    Sketcher.Constraint("Vertical", 30),
    Sketcher.Constraint("Horizontal", 31),
    Sketcher.Constraint("Horizontal", 42),
    Sketcher.Constraint("Horizontal", 43),
    Sketcher.Constraint("Vertical", 44),
    Sketcher.Constraint("Horizontal", 45),
    Sketcher.Constraint("Vertical", 46),
    Sketcher.Constraint("Vertical", 47),
    Sketcher.Constraint("Horizontal", 48),
    Sketcher.Constraint("Vertical", 49),
    Sketcher.Constraint("Horizontal", 50),
    Sketcher.Constraint("Vertical", 51),
    Sketcher.Constraint("Vertical", 53),
    Sketcher.Constraint("Vertical", 58),
    Sketcher.Constraint("Horizontal", 60),
    Sketcher.Constraint("Vertical", 61),
    Sketcher.Constraint("Horizontal", 62),
    Sketcher.Constraint("Vertical", 63),
    Sketcher.Constraint("Vertical", 64),
    Sketcher.Constraint("Horizontal", 65),
    Sketcher.Constraint("Vertical", 66),
    Sketcher.Constraint("Horizontal", 67),
    Sketcher.Constraint("Vertical", 68),
    Sketcher.Constraint("Horizontal", 69),
    Sketcher.Constraint("Vertical", 70),
    Sketcher.Constraint("Horizontal", 71),
    Sketcher.Constraint("Vertical", 72),
    Sketcher.Constraint("Horizontal", 73),
    Sketcher.Constraint("Vertical", 74),
    Sketcher.Constraint("Horizontal", 75),
    Sketcher.Constraint("Vertical", 76),
    Sketcher.Constraint("Vertical", 78),
    Sketcher.Constraint("Vertical", 83),
    Sketcher.Constraint("DistanceX", 0, 2, 0, 1, 8.105599),
    Sketcher.Constraint("DistanceX", 10, 2, 10, 1, 8.105599),
    Sketcher.Constraint("DistanceX", 24, 2, 24, 1, 8.105599),
    Sketcher.Constraint("DistanceX", 43, 2, 43, 1, 8.105599),
    Sketcher.Constraint("DistanceX", 60, 2, 60, 1, 8.105599),
    Sketcher.Constraint("DistanceY", 25, 1, 25, 2, 6.075299),
    Sketcher.Constraint("DistanceX", 18, 1, 18, 2, 2.683049),
    Sketcher.Constraint("DistanceX", 23, 2, 23, 1, 2.683049),
    Sketcher.Constraint("DistanceX", 31, 2, 31, 1, 1.33036),
    Sketcher.Constraint("DistanceX", 65, 1, 65, 2, 0.968059),
    Sketcher.Constraint("DistanceX", 69, 1, 69, 2, 0.968059),
    Sketcher.Constraint("DistanceX", 71, 2, 71, 1, 0.968059),
    Sketcher.Constraint("DistanceX", 75, 2, 75, 1, 0.968059),
    Sketcher.Constraint("DistanceY", 6, 1, 6, 2, 0.507078),
    Sketcher.Constraint("DistanceY", 11, 1, 11, 2, 5.673919),
    Sketcher.Constraint("DistanceY", 14, 2, 14, 1, 0.507078),
    Sketcher.Constraint("DistanceY", 16, 1, 16, 2, 0.53589),
    Sketcher.Constraint("DistanceY", 19, 1, 19, 2, 0.507078),
    Sketcher.Constraint("DistanceY", 21, 2, 21, 1, 0.53589),
    Sketcher.Constraint("DistanceY", 28, 2, 28, 1, 0.968059),
    Sketcher.Constraint("DistanceY", 66, 2, 66, 1, 0.968059),
    Sketcher.Constraint("DistanceY", 68, 1, 68, 2, 0.968059),
    Sketcher.Constraint("DistanceY", 72, 1, 72, 2, 0.968059),
    Sketcher.Constraint("DistanceY", 74, 2, 74, 1, 0.968059),
    Sketcher.Constraint("DistanceY", 4, 2, -1, 1, 21.978599),
    Sketcher.Constraint("DistanceY", 47, 2, -1, 1, 0.957899),
    Sketcher.Constraint("Distance", 52, 3.876978),
    Sketcher.Constraint("Distance", 54, 2.756548),
    Sketcher.Constraint("Distance", 77, 3.876978),
    Sketcher.Constraint("Distance", 79, 2.756548),
    Sketcher.Constraint("DistanceX", 5, 1, 5, 2, 3.595646),
    Sketcher.Constraint("DistanceX", 7, 2, 7, 1, 3.180764),
    Sketcher.Constraint("DistanceX", 15, 1, 15, 2, 3.595646),
    Sketcher.Constraint("DistanceX", 20, 2, 20, 1, 3.595646),
    Sketcher.Constraint("DistanceX", 29, 1, 29, 2, 0.414882),
    Sketcher.Constraint("DistanceX", 48, 1, 48, 2, 0.414882),
    Sketcher.Constraint("DistanceX", 67, 1, 67, 2, 0.414882),
    Sketcher.Constraint("DistanceY", 1, 1, 1, 2, 5.781994),
    Sketcher.Constraint("DistanceY", 4, 2, 4, 1, 2.212705),
    Sketcher.Constraint("DistanceY", 44, 1, 44, 2, 6.296827),
    Sketcher.Constraint("DistanceY", 47, 2, 47, 1, 1.336843),
    Sketcher.Constraint("DistanceY", 51, 2, 51, 1, 0.549575),
    Sketcher.Constraint("DistanceY", 53, 1, 53, 2, 0.549575),
    Sketcher.Constraint("DistanceY", 58, 1, 58, 2, 0.549575),
    Sketcher.Constraint("DistanceY", 61, 1, 61, 2, 6.589057),
    Sketcher.Constraint("DistanceY", 64, 2, 64, 1, 0.414882),
    Sketcher.Constraint("DistanceY", 76, 2, 76, 1, 0.549575),
    Sketcher.Constraint("DistanceY", 78, 1, 78, 2, 0.549575),
    Sketcher.Constraint("DistanceY", 83, 1, 83, 2, 0.549575),
    Sketcher.Constraint("DistanceY", 1, 2, -1, 1, 17.994429),
    Sketcher.Constraint("DistanceX", -1, 1, 7, 2, 21.953089),
    Sketcher.Constraint("DistanceY", 10, 2, -1, 1, 15.941011),
    Sketcher.Constraint("DistanceY", 17, 2, -1, 1, 12.805092),
    Sketcher.Constraint("DistanceY", 24, 2, -1, 1, 8.48386),
    Sketcher.Constraint("DistanceY", 43, 2, -1, 1, 1.217319),
    Sketcher.Constraint("DistanceX", -1, 1, 47, 2, 22.598461),
    Sketcher.Constraint("DistanceY", -1, 1, 52, 2, 0.52084),
    Sketcher.Constraint("DistanceY", -1, 1, 58, 2, 3.970989),
    Sketcher.Constraint("DistanceY", -1, 1, 59, 2, 2.520342),
    Sketcher.Constraint("DistanceY", -1, 1, 61, 2, 13.226491),
    Sketcher.Constraint("DistanceX", -1, 1, 64, 2, 22.137481),
    Sketcher.Constraint("DistanceY", -1, 1, 76, 2, 10.959882),
    Sketcher.Constraint("DistanceY", -1, 1, 78, 2, 10.05953),
    Sketcher.Constraint("DistanceY", -1, 1, 82, 2, 12.410529),
    Sketcher.Constraint("Distance", 17, 3.188602),
    Sketcher.Constraint("Distance", 57, 2.757316),
    Sketcher.Constraint("Distance", 82, 2.757316),
    Sketcher.Constraint("DistanceX", -1, 1, 0, 2, 18.944415),
    Sketcher.Constraint("DistanceX", -1, 1, 10, 2, 18.944415),
    Sketcher.Constraint("DistanceX", -1, 1, 14, 2, 21.538207),
    Sketcher.Constraint("DistanceY", 14, 2, -1, 1, 15.063895),
    Sketcher.Constraint("DistanceX", -1, 1, 24, 2, 18.944415),
    Sketcher.Constraint("DistanceX", -1, 1, 43, 2, 18.944415),
    Sketcher.Constraint("DistanceX", -1, 1, 60, 2, 18.944415),
    Sketcher.Constraint("DistanceY", -1, 1, 64, 2, 7.892923),
])
pocket4 = body.newObject("PartDesign::Pocket", "Pocket003")
pocket4.Profile = sketch6
pocket4.Length = 0.2
pocket4.Reversed = True

# Sketch on YZ plane
sketch7 = body.newObject("Sketcher::SketchObject", "Sketch006")
sketch7.AttachmentSupport = (doc.getObject("YZ_Plane"), [""])
sketch7.MapMode = "FlatFace"
sketch7.AttachmentOffset = App.Placement(V(0, 0, -34.25), App.Rotation())
sketch7.addGeometry([
    Part.Circle(V(12.513974, -20.912444, 0), V(0, 0, 1), 0.1),  # 0
    Part.Circle(V(12.513974, -13.347219, 0), V(0, 0, 1), 0.1),  # 1
    Part.Circle(V(12.513974, -5.24162, 0), V(0, 0, 1), 0.1),  # 2
    Part.Circle(V(12.513974, 2.053418, 0), V(0, 0, 1), 0.1),  # 3
    Part.Circle(V(12.513974, 10.050942, 0), V(0, 0, 1), 0.1),  # 4
], False)
sketch7.addConstraint([
    Sketcher.Constraint("Equal", 0, 1),
    Sketcher.Constraint("Equal", 1, 2),
    Sketcher.Constraint("Equal", 2, 3),
    Sketcher.Constraint("Equal", 3, 4),
    Sketcher.Constraint("Vertical", 0, 3, 1, 3),
    Sketcher.Constraint("Vertical", 1, 3, 2, 3),
    Sketcher.Constraint("Vertical", 2, 3, 3, 3),
    Sketcher.Constraint("Vertical", 3, 3, 4, 3),
    Sketcher.Constraint("Diameter", 0, 0.2),
    Sketcher.Constraint("DistanceY", 1, 3, 2, 3, 8.105599),
    Sketcher.Constraint("DistanceY", 1, 3, -1, 1, 13.347219),
    Sketcher.Constraint("DistanceY", -1, 1, 3, 3, 2.053418),
    Sketcher.Constraint("DistanceY", 1, 3, 4, 3, 23.398161),
    Sketcher.Constraint("DistanceX", -1, 1, 0, 3, 12.513974),
    Sketcher.Constraint("DistanceY", 0, 3, -1, 1, 20.912444),
])
pocket5 = body.newObject("PartDesign::Pocket", "Pocket004")
pocket5.Profile = sketch7
pocket5.Length = 0.2
pocket5.Reversed = True

doc.recompute()
